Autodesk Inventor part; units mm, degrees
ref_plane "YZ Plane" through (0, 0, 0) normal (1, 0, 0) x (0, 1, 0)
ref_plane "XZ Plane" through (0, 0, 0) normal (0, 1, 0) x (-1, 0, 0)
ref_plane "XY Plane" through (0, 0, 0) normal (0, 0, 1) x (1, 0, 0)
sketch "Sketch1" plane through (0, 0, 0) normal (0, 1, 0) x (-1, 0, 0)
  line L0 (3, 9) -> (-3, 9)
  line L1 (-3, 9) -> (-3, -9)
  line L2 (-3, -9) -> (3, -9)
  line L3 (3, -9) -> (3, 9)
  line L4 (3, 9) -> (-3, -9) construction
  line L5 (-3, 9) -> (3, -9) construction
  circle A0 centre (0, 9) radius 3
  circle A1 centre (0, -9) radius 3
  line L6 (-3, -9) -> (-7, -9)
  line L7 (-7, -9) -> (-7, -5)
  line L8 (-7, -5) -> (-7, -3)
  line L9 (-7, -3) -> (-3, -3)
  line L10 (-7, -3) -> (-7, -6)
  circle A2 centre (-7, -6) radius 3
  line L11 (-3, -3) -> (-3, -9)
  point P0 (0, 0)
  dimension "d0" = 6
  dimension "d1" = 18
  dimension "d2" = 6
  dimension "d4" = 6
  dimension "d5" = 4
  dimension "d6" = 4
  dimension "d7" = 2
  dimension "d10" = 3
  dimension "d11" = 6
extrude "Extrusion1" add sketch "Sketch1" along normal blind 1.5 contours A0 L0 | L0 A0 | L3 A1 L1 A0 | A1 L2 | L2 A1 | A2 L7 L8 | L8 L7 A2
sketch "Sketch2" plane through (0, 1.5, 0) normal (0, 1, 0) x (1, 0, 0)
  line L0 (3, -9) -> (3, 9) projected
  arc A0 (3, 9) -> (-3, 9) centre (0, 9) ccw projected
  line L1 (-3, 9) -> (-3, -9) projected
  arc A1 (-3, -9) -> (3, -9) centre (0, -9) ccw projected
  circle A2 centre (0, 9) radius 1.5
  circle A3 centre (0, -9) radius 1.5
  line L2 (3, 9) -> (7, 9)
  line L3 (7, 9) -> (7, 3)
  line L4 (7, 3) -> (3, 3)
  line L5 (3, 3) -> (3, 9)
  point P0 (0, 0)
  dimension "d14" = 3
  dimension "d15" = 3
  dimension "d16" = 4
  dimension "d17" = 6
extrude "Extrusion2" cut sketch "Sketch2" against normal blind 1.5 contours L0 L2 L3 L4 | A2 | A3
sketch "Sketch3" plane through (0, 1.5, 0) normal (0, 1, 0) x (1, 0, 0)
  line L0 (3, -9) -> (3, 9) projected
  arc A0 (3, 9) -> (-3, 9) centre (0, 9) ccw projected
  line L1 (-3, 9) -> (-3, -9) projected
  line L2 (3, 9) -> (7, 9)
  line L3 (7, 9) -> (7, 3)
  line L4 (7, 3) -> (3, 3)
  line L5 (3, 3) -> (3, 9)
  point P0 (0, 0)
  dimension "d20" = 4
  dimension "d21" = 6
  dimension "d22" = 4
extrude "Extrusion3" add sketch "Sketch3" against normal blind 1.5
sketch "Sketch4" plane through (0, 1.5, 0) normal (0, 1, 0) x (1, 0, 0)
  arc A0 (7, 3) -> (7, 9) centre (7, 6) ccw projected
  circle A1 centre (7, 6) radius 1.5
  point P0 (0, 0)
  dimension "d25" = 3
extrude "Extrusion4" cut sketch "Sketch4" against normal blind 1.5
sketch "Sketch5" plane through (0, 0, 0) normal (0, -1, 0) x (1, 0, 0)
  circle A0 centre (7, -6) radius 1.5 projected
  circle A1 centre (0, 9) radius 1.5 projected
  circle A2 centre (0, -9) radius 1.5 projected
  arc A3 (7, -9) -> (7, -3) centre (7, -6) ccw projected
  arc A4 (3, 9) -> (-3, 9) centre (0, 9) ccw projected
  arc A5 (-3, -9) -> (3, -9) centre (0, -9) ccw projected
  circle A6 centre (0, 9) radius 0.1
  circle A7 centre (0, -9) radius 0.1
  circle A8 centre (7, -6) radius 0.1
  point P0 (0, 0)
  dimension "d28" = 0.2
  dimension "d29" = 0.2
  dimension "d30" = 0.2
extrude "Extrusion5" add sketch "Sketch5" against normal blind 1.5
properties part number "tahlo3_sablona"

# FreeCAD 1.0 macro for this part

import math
import FreeCAD as App
import Part
import Sketcher

V = App.Vector


def add_polygon(sketch, points):
    """Adds a closed chain of lines whose ends are joined by coincident constraints."""
    first, n = sketch.GeometryCount, len(points)
    for a, b in zip(points, points[1:] + points[:1]):
        sketch.addGeometry(Part.LineSegment(App.Vector(*a, 0), App.Vector(*b, 0)), False)
    for i in range(n):
        sketch.addConstraint(Sketcher.Constraint("Coincident", first + i, 2, first + (i + 1) % n, 1))

doc = App.newDocument("Part")
body = doc.addObject("PartDesign::Body", "Body")
body.AllowCompound = True

sketch1 = doc.addObject("Sketcher::SketchObject", "Sketch")
body.addObject(sketch1)
sketch1.AttachmentSupport = (doc.XZ_Plane, [""])
sketch1.MapMode = "FlatFace"
sketch1.addGeometry([
    Part.LineSegment(V(-3, -9, 0), V(-3, 9, 0)),
    Part.ArcOfCircle(Part.Circle(V(0, 9, 0), V(0, 0, 1), 3), math.radians(0), math.radians(180)),
    Part.LineSegment(V(3, 9, 0), V(3, -9, 0)),
    Part.ArcOfCircle(Part.Circle(V(0, -9, 0), V(0, 0, 1), 3), math.radians(180), math.radians(360)),
    Part.Circle(V(7, -6, 0), V(0, 0, 1), 3),
], False)
sketch1.addConstraint([
    Sketcher.Constraint("Tangent", 0, 2, 1, 2),
    Sketcher.Constraint("Tangent", 1, 1, 2, 1),
    Sketcher.Constraint("Tangent", 2, 2, 3, 2),
    Sketcher.Constraint("Tangent", 3, 1, 0, 1),
    Sketcher.Constraint("Vertical", 0),
    Sketcher.Constraint("Vertical", 2),
    Sketcher.Constraint("Equal", 3, 4),
    Sketcher.Constraint("Symmetric", 1, 3, 3, 3, -1, 1),
    Sketcher.Constraint("Diameter", 4, 6.0),
    Sketcher.Constraint("DistanceY", 0, 1, 0, 2, 18.0),
    Sketcher.Constraint("DistanceY", 4, 3, -1, 1, 6.0),
    Sketcher.Constraint("DistanceX", 1, 1, 4, 3, 4.0),
])
pad1 = doc.addObject("PartDesign::Pad", "Pad")
body.addObject(pad1)
pad1.Profile = sketch1
pad1.Length = 1.5
pad1.Reversed = True

sketch2 = doc.addObject("Sketcher::SketchObject", "Sketch001")
body.addObject(sketch2)
sketch2.AttachmentSupport = (doc.XZ_Plane, [""])
sketch2.MapMode = "FlatFace"
sketch2.AttachmentOffset = App.Placement(V(0, 0, -1.5), App.Rotation())
add_polygon(sketch2, [(3, -9), (3, -3), (7, -3), (7, -9)])
sketch2.addGeometry(Part.Circle(V(0, -9, 0), V(0, 0, 1), 1.5), False)
sketch2.addGeometry(Part.Circle(V(0, 9, 0), V(0, 0, 1), 1.5), False)
sketch2.addConstraint([
    Sketcher.Constraint("Vertical", 0),
    Sketcher.Constraint("Horizontal", 1),
    Sketcher.Constraint("Vertical", 2),
    Sketcher.Constraint("Horizontal", 3),
    Sketcher.Constraint("Equal", 4, 5),
    Sketcher.Constraint("Symmetric", 4, 3, 5, 3, -1, 1),
    Sketcher.Constraint("PointOnObject", 4, 3, -2),
    Sketcher.Constraint("Horizontal", 4, 3, 2, 2),
    Sketcher.Constraint("Diameter", 4, 3.0),
    Sketcher.Constraint("DistanceX", 1, 1, 1, 2, 4.0),
    Sketcher.Constraint("DistanceY", 0, 1, 0, 2, 6.0),
    Sketcher.Constraint("DistanceX", -1, 1, 0, 2, 3.0),
    Sketcher.Constraint("DistanceY", 0, 2, -1, 1, 3.0),
])
pocket1 = doc.addObject("PartDesign::Pocket", "Pocket")
body.addObject(pocket1)
pocket1.Profile = sketch2
pocket1.Length = 1.5
pocket1.Reversed = True

sketch3 = doc.addObject("Sketcher::SketchObject", "Sketch002")
body.addObject(sketch3)
sketch3.AttachmentSupport = (doc.XZ_Plane, [""])
sketch3.MapMode = "FlatFace"
sketch3.AttachmentOffset = App.Placement(V(0, 0, -1.5), App.Rotation())
add_polygon(sketch3, [(3, -9), (3, -3), (7, -3), (7, -9)])
sketch3.addConstraint([
    Sketcher.Constraint("Vertical", 0),
    Sketcher.Constraint("Horizontal", 1),
    Sketcher.Constraint("Vertical", 2),
    Sketcher.Constraint("Horizontal", 3),
    Sketcher.Constraint("DistanceX", 1, 1, 1, 2, 4.0),
    Sketcher.Constraint("DistanceY", 0, 1, 0, 2, 6.0),
    Sketcher.Constraint("DistanceX", -1, 1, 0, 2, 3.0),
    Sketcher.Constraint("DistanceY", 0, 2, -1, 1, 3.0),
])
pad2 = doc.addObject("PartDesign::Pad", "Pad001")
body.addObject(pad2)
pad2.Profile = sketch3
pad2.Length = 1.5

sketch4 = doc.addObject("Sketcher::SketchObject", "Sketch003")
body.addObject(sketch4)
sketch4.AttachmentSupport = (doc.XZ_Plane, [""])
sketch4.MapMode = "FlatFace"
sketch4.AttachmentOffset = App.Placement(V(0, 0, -1.5), App.Rotation())
sketch4.addGeometry(Part.Circle(V(7, -6, 0), V(0, 0, 1), 1.5), False)
sketch4.addConstraint([
    Sketcher.Constraint("Diameter", 0, 3.0),
    Sketcher.Constraint("DistanceX", -1, 1, 0, 3, 7.0),
    Sketcher.Constraint("DistanceY", 0, 3, -1, 1, 6.0),
])
pocket2 = doc.addObject("PartDesign::Pocket", "Pocket001")
body.addObject(pocket2)
pocket2.Profile = sketch4
pocket2.Length = 1.5
pocket2.Reversed = True

sketch5 = doc.addObject("Sketcher::SketchObject", "Sketch004")
body.addObject(sketch5)
sketch5.AttachmentSupport = (doc.XZ_Plane, [""])
sketch5.MapMode = "FlatFace"
sketch5.addGeometry([
    Part.Circle(V(7, -6, 0), V(0, 0, 1), 1.5),
    Part.Circle(V(7, -6, 0), V(0, 0, 1), 0.1),
    Part.Circle(V(0, 9, 0), V(0, 0, 1), 1.5),
    Part.Circle(V(0, 9, 0), V(0, 0, 1), 0.1),
    Part.Circle(V(0, -9, 0), V(0, 0, 1), 1.5),
    Part.Circle(V(0, -9, 0), V(0, 0, 1), 0.1),
], False)
sketch5.addConstraint([
    Sketcher.Constraint("Coincident", 1, 3, 0, 3),
    Sketcher.Constraint("Coincident", 3, 3, 2, 3),
    Sketcher.Constraint("Coincident", 5, 3, 4, 3),
    Sketcher.Constraint("Equal", 0, 2),
    Sketcher.Constraint("Equal", 1, 3),
    Sketcher.Constraint("Equal", 2, 4),
    Sketcher.Constraint("Equal", 3, 5),
    Sketcher.Constraint("Symmetric", 2, 3, 4, 3, -1, 1),
    Sketcher.Constraint("PointOnObject", 2, 3, -2),
    Sketcher.Constraint("Diameter", 1, 0.2),
    Sketcher.Constraint("Diameter", 0, 3.0),
    Sketcher.Constraint("DistanceX", -1, 1, 0, 3, 7.0),
    Sketcher.Constraint("DistanceY", 0, 3, -1, 1, 6.0),
    Sketcher.Constraint("DistanceY", -1, 1, 2, 3, 9.0),
])
pad3 = doc.addObject("PartDesign::Pad", "Pad002")
body.addObject(pad3)
pad3.Profile = sketch5
pad3.Length = 1.5
pad3.Reversed = True

doc.recompute()
